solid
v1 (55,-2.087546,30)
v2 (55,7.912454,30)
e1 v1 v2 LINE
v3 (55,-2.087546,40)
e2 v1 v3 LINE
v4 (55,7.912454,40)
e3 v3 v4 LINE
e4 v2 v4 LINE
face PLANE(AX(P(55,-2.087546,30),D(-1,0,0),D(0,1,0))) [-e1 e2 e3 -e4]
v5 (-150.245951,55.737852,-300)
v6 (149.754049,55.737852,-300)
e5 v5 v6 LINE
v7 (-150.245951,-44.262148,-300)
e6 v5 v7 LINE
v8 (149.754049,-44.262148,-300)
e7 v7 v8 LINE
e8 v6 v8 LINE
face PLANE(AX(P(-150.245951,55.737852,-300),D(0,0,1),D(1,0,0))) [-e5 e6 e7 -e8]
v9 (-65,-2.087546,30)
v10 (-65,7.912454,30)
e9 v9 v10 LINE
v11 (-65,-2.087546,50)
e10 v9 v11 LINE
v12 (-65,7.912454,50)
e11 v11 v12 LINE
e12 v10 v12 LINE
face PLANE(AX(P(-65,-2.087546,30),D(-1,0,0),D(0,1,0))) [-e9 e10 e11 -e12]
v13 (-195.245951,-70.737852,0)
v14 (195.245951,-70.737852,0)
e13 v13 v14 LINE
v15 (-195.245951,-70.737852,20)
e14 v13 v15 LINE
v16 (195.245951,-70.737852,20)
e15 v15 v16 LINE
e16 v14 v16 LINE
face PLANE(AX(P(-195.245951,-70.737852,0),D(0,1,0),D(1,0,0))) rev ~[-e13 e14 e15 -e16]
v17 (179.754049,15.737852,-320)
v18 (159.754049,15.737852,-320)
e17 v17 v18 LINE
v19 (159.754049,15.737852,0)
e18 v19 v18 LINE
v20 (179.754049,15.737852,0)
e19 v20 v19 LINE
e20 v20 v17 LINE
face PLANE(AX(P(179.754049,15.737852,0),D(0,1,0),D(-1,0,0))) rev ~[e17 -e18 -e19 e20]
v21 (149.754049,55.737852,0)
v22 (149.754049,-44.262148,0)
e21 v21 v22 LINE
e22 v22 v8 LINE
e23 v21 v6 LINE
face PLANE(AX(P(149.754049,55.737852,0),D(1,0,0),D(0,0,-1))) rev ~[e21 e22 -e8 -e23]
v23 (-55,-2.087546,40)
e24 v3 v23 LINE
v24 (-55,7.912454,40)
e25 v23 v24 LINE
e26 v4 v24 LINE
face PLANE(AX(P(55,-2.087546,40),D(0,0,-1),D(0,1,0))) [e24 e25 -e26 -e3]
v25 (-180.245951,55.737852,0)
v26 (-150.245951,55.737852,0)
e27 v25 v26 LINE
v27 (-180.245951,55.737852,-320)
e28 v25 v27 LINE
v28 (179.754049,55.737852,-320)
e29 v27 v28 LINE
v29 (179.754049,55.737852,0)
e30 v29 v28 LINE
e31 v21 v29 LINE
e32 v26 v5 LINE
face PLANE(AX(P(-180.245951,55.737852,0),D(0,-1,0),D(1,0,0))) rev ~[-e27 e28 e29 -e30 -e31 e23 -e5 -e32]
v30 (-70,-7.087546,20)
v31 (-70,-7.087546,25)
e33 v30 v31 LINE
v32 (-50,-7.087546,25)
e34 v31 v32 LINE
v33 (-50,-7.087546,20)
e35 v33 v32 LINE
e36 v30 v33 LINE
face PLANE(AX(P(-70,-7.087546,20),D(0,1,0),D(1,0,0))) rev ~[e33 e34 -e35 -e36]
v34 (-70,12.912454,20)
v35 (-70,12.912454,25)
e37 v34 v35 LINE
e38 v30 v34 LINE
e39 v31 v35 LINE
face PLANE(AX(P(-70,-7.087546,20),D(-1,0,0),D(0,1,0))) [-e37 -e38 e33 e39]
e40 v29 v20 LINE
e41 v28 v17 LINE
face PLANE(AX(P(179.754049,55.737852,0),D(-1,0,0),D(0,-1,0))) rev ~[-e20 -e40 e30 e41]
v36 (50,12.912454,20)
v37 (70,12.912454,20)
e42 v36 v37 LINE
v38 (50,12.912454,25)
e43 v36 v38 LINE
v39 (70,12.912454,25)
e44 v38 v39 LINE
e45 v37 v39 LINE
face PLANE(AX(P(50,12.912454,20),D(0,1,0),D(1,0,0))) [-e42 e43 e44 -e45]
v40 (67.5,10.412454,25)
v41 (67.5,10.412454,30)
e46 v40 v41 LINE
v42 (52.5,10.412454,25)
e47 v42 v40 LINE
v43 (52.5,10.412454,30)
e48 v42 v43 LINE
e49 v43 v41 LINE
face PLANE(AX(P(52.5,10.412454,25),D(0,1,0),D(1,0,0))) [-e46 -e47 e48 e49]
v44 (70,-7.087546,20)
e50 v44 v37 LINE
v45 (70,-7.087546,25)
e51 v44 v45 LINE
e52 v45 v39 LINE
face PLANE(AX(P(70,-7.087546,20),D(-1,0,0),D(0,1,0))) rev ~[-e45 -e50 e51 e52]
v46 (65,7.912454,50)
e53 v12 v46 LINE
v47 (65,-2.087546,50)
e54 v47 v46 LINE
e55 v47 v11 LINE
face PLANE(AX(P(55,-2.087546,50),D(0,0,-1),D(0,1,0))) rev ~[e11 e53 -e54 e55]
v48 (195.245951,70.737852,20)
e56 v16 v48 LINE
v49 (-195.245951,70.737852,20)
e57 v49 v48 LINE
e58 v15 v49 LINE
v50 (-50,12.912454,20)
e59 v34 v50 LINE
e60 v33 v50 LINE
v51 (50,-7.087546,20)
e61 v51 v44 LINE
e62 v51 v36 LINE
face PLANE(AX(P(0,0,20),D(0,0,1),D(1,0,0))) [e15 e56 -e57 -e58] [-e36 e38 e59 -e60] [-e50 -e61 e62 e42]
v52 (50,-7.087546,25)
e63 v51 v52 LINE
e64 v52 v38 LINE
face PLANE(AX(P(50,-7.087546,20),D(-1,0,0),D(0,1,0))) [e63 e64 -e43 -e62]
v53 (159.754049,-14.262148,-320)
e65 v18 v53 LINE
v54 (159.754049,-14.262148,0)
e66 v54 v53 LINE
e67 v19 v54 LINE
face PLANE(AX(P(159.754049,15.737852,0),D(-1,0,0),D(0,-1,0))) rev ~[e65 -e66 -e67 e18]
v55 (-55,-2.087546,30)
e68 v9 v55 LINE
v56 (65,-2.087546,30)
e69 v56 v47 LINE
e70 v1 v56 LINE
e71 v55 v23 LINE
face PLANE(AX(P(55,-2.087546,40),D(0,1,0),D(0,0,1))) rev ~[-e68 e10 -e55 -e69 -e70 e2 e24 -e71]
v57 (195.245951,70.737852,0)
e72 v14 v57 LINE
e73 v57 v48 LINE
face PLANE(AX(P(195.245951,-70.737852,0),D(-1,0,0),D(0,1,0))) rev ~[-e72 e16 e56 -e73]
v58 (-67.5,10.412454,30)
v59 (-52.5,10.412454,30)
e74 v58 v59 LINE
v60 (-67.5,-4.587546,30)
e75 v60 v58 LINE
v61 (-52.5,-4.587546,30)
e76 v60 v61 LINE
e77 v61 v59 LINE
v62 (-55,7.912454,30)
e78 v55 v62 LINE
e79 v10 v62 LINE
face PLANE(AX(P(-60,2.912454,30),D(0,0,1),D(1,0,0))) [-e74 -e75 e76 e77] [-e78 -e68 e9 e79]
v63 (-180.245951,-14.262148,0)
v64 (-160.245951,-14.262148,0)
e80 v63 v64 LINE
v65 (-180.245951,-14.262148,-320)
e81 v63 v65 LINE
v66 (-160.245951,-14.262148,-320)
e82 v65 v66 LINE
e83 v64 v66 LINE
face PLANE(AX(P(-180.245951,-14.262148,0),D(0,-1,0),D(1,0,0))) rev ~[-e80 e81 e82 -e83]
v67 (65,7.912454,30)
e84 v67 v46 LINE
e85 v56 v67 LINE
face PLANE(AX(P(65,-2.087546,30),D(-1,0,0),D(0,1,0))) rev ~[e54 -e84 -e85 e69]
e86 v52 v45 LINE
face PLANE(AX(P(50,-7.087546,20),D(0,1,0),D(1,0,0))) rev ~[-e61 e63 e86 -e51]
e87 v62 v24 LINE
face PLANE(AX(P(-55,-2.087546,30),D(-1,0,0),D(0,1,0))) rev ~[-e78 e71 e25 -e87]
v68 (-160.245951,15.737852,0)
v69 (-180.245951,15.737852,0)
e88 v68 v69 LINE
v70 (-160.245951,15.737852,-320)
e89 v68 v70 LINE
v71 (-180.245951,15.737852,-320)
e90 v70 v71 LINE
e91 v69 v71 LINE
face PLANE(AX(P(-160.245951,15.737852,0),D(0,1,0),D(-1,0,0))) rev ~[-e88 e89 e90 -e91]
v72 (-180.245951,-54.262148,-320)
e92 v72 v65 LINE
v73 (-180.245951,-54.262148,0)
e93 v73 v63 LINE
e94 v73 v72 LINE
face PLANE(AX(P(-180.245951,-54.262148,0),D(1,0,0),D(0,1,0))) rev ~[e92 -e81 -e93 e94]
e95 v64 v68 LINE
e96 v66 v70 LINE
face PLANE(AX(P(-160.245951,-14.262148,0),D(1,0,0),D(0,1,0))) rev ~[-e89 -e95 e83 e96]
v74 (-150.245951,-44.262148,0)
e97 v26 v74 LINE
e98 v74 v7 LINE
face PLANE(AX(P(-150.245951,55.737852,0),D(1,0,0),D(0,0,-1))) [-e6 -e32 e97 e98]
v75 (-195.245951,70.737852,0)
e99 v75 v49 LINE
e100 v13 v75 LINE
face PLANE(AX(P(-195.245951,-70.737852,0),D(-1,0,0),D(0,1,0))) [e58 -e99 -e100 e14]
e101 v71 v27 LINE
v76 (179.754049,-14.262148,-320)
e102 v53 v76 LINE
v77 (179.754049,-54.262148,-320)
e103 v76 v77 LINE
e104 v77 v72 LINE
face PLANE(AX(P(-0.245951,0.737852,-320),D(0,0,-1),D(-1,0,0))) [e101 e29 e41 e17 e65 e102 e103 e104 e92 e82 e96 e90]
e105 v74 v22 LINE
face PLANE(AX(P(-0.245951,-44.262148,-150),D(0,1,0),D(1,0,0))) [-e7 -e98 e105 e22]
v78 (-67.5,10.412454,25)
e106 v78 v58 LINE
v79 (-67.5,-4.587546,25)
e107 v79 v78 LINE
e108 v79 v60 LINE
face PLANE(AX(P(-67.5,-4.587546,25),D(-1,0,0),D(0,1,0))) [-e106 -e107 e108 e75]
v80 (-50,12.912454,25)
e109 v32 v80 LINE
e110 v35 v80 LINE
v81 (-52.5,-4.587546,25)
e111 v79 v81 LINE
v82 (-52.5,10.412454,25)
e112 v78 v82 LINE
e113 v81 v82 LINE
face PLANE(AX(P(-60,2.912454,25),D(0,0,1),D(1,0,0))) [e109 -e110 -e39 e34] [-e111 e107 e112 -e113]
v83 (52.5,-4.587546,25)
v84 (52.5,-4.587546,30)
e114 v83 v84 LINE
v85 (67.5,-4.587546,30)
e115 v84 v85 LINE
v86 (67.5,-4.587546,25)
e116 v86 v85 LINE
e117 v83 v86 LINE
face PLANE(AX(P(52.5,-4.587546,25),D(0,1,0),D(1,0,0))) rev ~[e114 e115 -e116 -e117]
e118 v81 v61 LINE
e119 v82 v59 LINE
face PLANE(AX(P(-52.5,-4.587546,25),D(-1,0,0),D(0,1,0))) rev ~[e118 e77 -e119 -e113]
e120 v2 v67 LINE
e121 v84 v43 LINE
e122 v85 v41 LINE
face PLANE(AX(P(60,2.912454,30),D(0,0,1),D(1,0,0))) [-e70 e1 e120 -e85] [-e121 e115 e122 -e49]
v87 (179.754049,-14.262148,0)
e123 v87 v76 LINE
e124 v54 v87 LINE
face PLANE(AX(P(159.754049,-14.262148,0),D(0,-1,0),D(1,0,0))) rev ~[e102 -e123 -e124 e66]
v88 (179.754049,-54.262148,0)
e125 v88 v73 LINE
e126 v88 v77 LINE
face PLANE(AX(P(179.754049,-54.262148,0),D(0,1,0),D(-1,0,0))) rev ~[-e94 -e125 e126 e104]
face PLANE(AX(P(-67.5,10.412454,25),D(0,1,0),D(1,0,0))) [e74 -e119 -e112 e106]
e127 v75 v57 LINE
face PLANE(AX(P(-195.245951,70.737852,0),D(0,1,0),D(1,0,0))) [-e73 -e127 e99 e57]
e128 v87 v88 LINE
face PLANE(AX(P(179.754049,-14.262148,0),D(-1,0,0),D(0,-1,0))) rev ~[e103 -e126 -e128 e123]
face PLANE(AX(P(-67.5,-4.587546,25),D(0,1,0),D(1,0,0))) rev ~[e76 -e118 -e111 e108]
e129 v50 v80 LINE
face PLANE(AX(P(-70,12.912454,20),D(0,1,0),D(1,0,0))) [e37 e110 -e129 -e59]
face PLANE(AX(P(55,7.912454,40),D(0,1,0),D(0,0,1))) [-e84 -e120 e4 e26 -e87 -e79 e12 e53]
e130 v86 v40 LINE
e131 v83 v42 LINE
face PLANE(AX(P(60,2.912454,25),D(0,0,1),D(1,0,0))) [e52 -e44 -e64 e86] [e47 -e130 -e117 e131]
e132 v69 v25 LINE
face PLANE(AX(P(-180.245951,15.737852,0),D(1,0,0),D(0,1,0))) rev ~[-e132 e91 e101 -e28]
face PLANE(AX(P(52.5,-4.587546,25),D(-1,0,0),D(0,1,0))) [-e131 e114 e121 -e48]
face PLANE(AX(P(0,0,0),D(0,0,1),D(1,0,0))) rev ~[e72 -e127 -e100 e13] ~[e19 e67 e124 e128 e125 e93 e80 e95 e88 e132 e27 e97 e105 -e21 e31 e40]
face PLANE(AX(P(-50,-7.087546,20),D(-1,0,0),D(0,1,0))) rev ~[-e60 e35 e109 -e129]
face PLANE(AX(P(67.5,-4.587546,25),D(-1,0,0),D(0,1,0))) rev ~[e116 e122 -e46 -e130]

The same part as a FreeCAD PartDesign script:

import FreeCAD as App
import Part
import Sketcher

V = App.Vector
Q = App.Units.Quantity

doc = App.newDocument("Part")
params = doc.addObject("Spreadsheet::Sheet", "Params")
for row, (alias, value) in enumerate([
    ("sketch1_width", "360 mm"),
    ("sketch1_width2", "20 mm"),
    ("sketch1_height", "40 mm"),
    ("sketch1_height2", "30 mm"),
    ("pad1_length", "320 mm"),
    ("pad2_length", "20 mm"),
    ("sketch3_width", "300 mm"),
    ("pocket1_length", "100 mm"),
    ("sketch4_width", "20 mm"),
    ("pad3_length", "5 mm"),
    ("sketch5_width", "15 mm"),
    ("pad4_length", "5 mm"),
    ("sketch6_width", "10 mm"),
    ("pad5_length", "20 mm"),
    ("sketch7_width", "10 mm"),
], start=1):
    params.set(f"A{row}", alias)
    params.set(f"B{row}", "=" + value)
    params.setAlias(f"B{row}", alias)

body = doc.addObject("PartDesign::Body", "Body")

sketch1 = body.newObject("Sketcher::SketchObject", "Sketch")
sketch1.AttachmentSupport = (doc.getObject("XY_Plane"), [""])
sketch1.MapMode = "FlatFace"
sketch1.addGeometry([
    Part.LineSegment(V(179.754049, 55.737852, 0), V(-180.245951, 55.737852, 0)),
    Part.LineSegment(V(-180.245951, 55.737852, 0), V(-180.245951, 15.737852, 0)),
    Part.LineSegment(V(-180.245951, 15.737852, 0), V(-160.245951, 15.737852, 0)),
    Part.LineSegment(V(-160.245951, 15.737852, 0), V(-160.245951, -14.262148, 0)),
    Part.LineSegment(V(-160.245951, -14.262148, 0), V(-180.245951, -14.262148, 0)),
    Part.LineSegment(V(-180.245951, -14.262148, 0), V(-180.245951, -54.262148, 0)),
    Part.LineSegment(V(-180.245951, -54.262148, 0), V(179.754049, -54.262148, 0)),
    Part.LineSegment(V(179.754049, -54.262148, 0), V(179.754049, -14.262148, 0)),
    Part.LineSegment(V(179.754049, -14.262148, 0), V(159.754049, -14.262148, 0)),
    Part.LineSegment(V(159.754049, -14.262148, 0), V(159.754049, 15.737852, 0)),
    Part.LineSegment(V(159.754049, 15.737852, 0), V(179.754049, 15.737852, 0)),
    Part.LineSegment(V(179.754049, 15.737852, 0), V(179.754049, 55.737852, 0)),
], False)
sketch1.addConstraint([
    Sketcher.Constraint("Coincident", 0, 2, 1, 1),
    Sketcher.Constraint("Coincident", 1, 2, 2, 1),
    Sketcher.Constraint("Coincident", 2, 2, 3, 1),
    Sketcher.Constraint("Coincident", 3, 2, 4, 1),
    Sketcher.Constraint("Coincident", 4, 2, 5, 1),
    Sketcher.Constraint("Coincident", 5, 2, 6, 1),
    Sketcher.Constraint("Coincident", 6, 2, 7, 1),
    Sketcher.Constraint("Coincident", 7, 2, 8, 1),
    Sketcher.Constraint("Coincident", 8, 2, 9, 1),
    Sketcher.Constraint("Coincident", 9, 2, 10, 1),
    Sketcher.Constraint("Coincident", 10, 2, 11, 1),
    Sketcher.Constraint("Coincident", 11, 2, 0, 1),
    Sketcher.Constraint("Horizontal", 0),
    Sketcher.Constraint("Vertical", 1),
    Sketcher.Constraint("Horizontal", 2),
    Sketcher.Constraint("Vertical", 3),
    Sketcher.Constraint("Horizontal", 4),
    Sketcher.Constraint("Vertical", 5),
    Sketcher.Constraint("Horizontal", 6),
    Sketcher.Constraint("Vertical", 7),
    Sketcher.Constraint("Horizontal", 8),
    Sketcher.Constraint("Vertical", 9),
    Sketcher.Constraint("Horizontal", 10),
    Sketcher.Constraint("Vertical", 11),
    Sketcher.Constraint("Horizontal", 4, 2, 7, 2),
    Sketcher.Constraint("Horizontal", 2, 2, 9, 2),
    Sketcher.Constraint("Vertical", 1, 2, 4, 2),
    Sketcher.Constraint("Vertical", 7, 2, 10, 2),
    Sketcher.Constraint("Equal", 4, 8),
    Sketcher.Constraint("Equal", 1, 5),
    Sketcher.Constraint("DistanceX", 0, 2, 0, 1, Q("360 mm")),
    Sketcher.Constraint("DistanceX", 2, 1, 2, 2, Q("20 mm")),
    Sketcher.Constraint("DistanceY", 1, 2, 1, 1, Q("40 mm")),
    Sketcher.Constraint("DistanceY", 3, 2, 3, 1, Q("30 mm")),
    Sketcher.Constraint("DistanceX", 0, 2, -1, 1, Q("180.245951 mm")),
    Sketcher.Constraint("DistanceY", -1, 1, 0, 2, Q("55.737852 mm")),
])
sketch1.setExpression("Constraints[30]", "Params.sketch1_width")
sketch1.setExpression("Constraints[31]", "Params.sketch1_width2")
sketch1.setExpression("Constraints[32]", "Params.sketch1_height")
sketch1.setExpression("Constraints[33]", "Params.sketch1_height2")
pad1 = body.newObject("PartDesign::Pad", "Pad")
pad1.Profile = sketch1
pad1.setExpression("Length", "Params.pad1_length")
pad1.Reversed = True

sketch2 = body.newObject("Sketcher::SketchObject", "Sketch001")
sketch2.AttachmentSupport = (doc.getObject("XY_Plane"), [""])
sketch2.MapMode = "FlatFace"
sketch2.addGeometry([
    Part.LineSegment(V(-195.245951, 70.737852, 0), V(-195.245951, -70.737852, 0)),
    Part.LineSegment(V(-195.245951, -70.737852, 0), V(195.245951, -70.737852, 0)),
    Part.LineSegment(V(195.245951, -70.737852, 0), V(195.245951, 70.737852, 0)),
    Part.LineSegment(V(195.245951, 70.737852, 0), V(-195.245951, 70.737852, 0)),
], False)
sketch2.addConstraint([
    Sketcher.Constraint("Coincident", 0, 2, 1, 1),
    Sketcher.Constraint("Coincident", 1, 2, 2, 1),
    Sketcher.Constraint("Coincident", 2, 2, 3, 1),
    Sketcher.Constraint("Coincident", 3, 2, 0, 1),
    Sketcher.Constraint("Vertical", 0),
    Sketcher.Constraint("Horizontal", 1),
    Sketcher.Constraint("Vertical", 2),
    Sketcher.Constraint("Horizontal", 3),
    Sketcher.Constraint("Symmetric", 0, 2, 2, 2, -1, 1),
    Sketcher.Constraint("DistanceX", 1, 1, 1, 2, Q("390.491901 mm")),
    Sketcher.Constraint("DistanceY", 0, 2, 0, 1, Q("141.475704 mm")),
])
pad2 = body.newObject("PartDesign::Pad", "Pad001")
pad2.Profile = sketch2
pad2.setExpression("Length", "Params.pad2_length")

sketch3 = body.newObject("Sketcher::SketchObject", "Sketch002")
sketch3.AttachmentSupport = (doc.getObject("XZ_Plane"), [""])
sketch3.MapMode = "FlatFace"
sketch3.AttachmentOffset = App.Placement(V(0, 0, -55.737852), App.Rotation())
sketch3.addGeometry([
    Part.LineSegment(V(-150.245951, -300, 0), V(-150.245951, 0, 0)),
    Part.LineSegment(V(-150.245951, 0, 0), V(149.754049, 0, 0)),
    Part.LineSegment(V(149.754049, 0, 0), V(149.754049, -300, 0)),
    Part.LineSegment(V(149.754049, -300, 0), V(-150.245951, -300, 0)),
], False)
sketch3.addConstraint([
    Sketcher.Constraint("Coincident", 0, 2, 1, 1),
    Sketcher.Constraint("Coincident", 1, 2, 2, 1),
    Sketcher.Constraint("Coincident", 2, 2, 3, 1),
    Sketcher.Constraint("Coincident", 3, 2, 0, 1),
    Sketcher.Constraint("Vertical", 0),
    Sketcher.Constraint("Horizontal", 1),
    Sketcher.Constraint("Vertical", 2),
    Sketcher.Constraint("Horizontal", 3),
    Sketcher.Constraint("PointOnObject", 0, 2, -1),
    Sketcher.Constraint("Equal", 3, 0),
    Sketcher.Constraint("DistanceX", 1, 1, 1, 2, Q("300 mm")),
    Sketcher.Constraint("DistanceX", 0, 2, -1, 1, Q("150.245951 mm")),
])
sketch3.setExpression("Constraints[10]", "Params.sketch3_width")
pocket1 = body.newObject("PartDesign::Pocket", "Pocket")
pocket1.Profile = sketch3
pocket1.setExpression("Length", "Params.pocket1_length")
pocket1.Reversed = True

sketch4 = body.newObject("Sketcher::SketchObject", "Sketch003")
sketch4.AttachmentSupport = (doc.getObject("XY_Plane"), [""])
sketch4.MapMode = "FlatFace"
sketch4.AttachmentOffset = App.Placement(V(0, 0, 20), App.Rotation())
sketch4.addGeometry([
    Part.LineSegment(V(-70, 12.912454, 0), V(-70, -7.087546, 0)),
    Part.LineSegment(V(-70, -7.087546, 0), V(-50, -7.087546, 0)),
    Part.LineSegment(V(-50, -7.087546, 0), V(-50, 12.912454, 0)),
    Part.LineSegment(V(-50, 12.912454, 0), V(-70, 12.912454, 0)),
    Part.LineSegment(V(50, 12.912454, 0), V(50, -7.087546, 0)),
    Part.LineSegment(V(50, -7.087546, 0), V(70, -7.087546, 0)),
    Part.LineSegment(V(70, -7.087546, 0), V(70, 12.912454, 0)),
    Part.LineSegment(V(70, 12.912454, 0), V(50, 12.912454, 0)),
], False)
sketch4.addConstraint([
    Sketcher.Constraint("Coincident", 0, 2, 1, 1),
    Sketcher.Constraint("Coincident", 1, 2, 2, 1),
    Sketcher.Constraint("Coincident", 2, 2, 3, 1),
    Sketcher.Constraint("Coincident", 3, 2, 0, 1),
    Sketcher.Constraint("Coincident", 4, 2, 5, 1),
    Sketcher.Constraint("Coincident", 5, 2, 6, 1),
    Sketcher.Constraint("Coincident", 6, 2, 7, 1),
    Sketcher.Constraint("Coincident", 7, 2, 4, 1),
    Sketcher.Constraint("Vertical", 0),
    Sketcher.Constraint("Horizontal", 1),
    Sketcher.Constraint("Vertical", 2),
    Sketcher.Constraint("Horizontal", 3),
    Sketcher.Constraint("Vertical", 4),
    Sketcher.Constraint("Horizontal", 5),
    Sketcher.Constraint("Vertical", 6),
    Sketcher.Constraint("Horizontal", 7),
    Sketcher.Constraint("Symmetric", 1, 2, 4, 2, -2),
    Sketcher.Constraint("Symmetric", 3, 2, 6, 2, -2),
    Sketcher.Constraint("Equal", 7, 0),
    Sketcher.Constraint("DistanceX", 1, 1, 1, 2, Q("20 mm")),
    Sketcher.Constraint("DistanceX", 0, 2, -1, 1, Q("70 mm")),
    Sketcher.Constraint("DistanceY", 0, 2, -1, 1, Q("7.087546 mm")),
])
sketch4.setExpression("Constraints[19]", "Params.sketch4_width")
pad3 = body.newObject("PartDesign::Pad", "Pad002")
pad3.Profile = sketch4
pad3.setExpression("Length", "Params.pad3_length")

sketch5 = body.newObject("Sketcher::SketchObject", "Sketch004")
sketch5.AttachmentSupport = (doc.getObject("XY_Plane"), [""])
sketch5.MapMode = "FlatFace"
sketch5.AttachmentOffset = App.Placement(V(0, 0, 25), App.Rotation())
sketch5.addGeometry([
    Part.LineSegment(V(-67.5, 10.412454, 0), V(-67.5, -4.587546, 0)),
    Part.LineSegment(V(-67.5, -4.587546, 0), V(-52.5, -4.587546, 0)),
    Part.LineSegment(V(-52.5, -4.587546, 0), V(-52.5, 10.412454, 0)),
    Part.LineSegment(V(-52.5, 10.412454, 0), V(-67.5, 10.412454, 0)),
    Part.LineSegment(V(52.5, 10.412454, 0), V(52.5, -4.587546, 0)),
    Part.LineSegment(V(52.5, -4.587546, 0), V(67.5, -4.587546, 0)),
    Part.LineSegment(V(67.5, -4.587546, 0), V(67.5, 10.412454, 0)),
    Part.LineSegment(V(67.5, 10.412454, 0), V(52.5, 10.412454, 0)),
], False)
sketch5.addConstraint([
    Sketcher.Constraint("Coincident", 0, 2, 1, 1),
    Sketcher.Constraint("Coincident", 1, 2, 2, 1),
    Sketcher.Constraint("Coincident", 2, 2, 3, 1),
    Sketcher.Constraint("Coincident", 3, 2, 0, 1),
    Sketcher.Constraint("Coincident", 4, 2, 5, 1),
    Sketcher.Constraint("Coincident", 5, 2, 6, 1),
    Sketcher.Constraint("Coincident", 6, 2, 7, 1),
    Sketcher.Constraint("Coincident", 7, 2, 4, 1),
    Sketcher.Constraint("Vertical", 0),
    Sketcher.Constraint("Horizontal", 1),
    Sketcher.Constraint("Vertical", 2),
    Sketcher.Constraint("Horizontal", 3),
    Sketcher.Constraint("Vertical", 4),
    Sketcher.Constraint("Horizontal", 5),
    Sketcher.Constraint("Vertical", 6),
    Sketcher.Constraint("Horizontal", 7),
    Sketcher.Constraint("Symmetric", 1, 2, 4, 2, -2),
    Sketcher.Constraint("Symmetric", 3, 2, 6, 2, -2),
    Sketcher.Constraint("Equal", 7, 0),
    Sketcher.Constraint("DistanceX", 1, 1, 1, 2, Q("15 mm")),
    Sketcher.Constraint("DistanceX", 1, 2, 4, 2, Q("105 mm")),
    Sketcher.Constraint("DistanceY", 0, 2, -1, 1, Q("4.587546 mm")),
])
sketch5.setExpression("Constraints[19]", "Params.sketch5_width")
pad4 = body.newObject("PartDesign::Pad", "Pad003")
pad4.Profile = sketch5
pad4.setExpression("Length", "Params.pad4_length")

sketch6 = body.newObject("Sketcher::SketchObject", "Sketch005")
sketch6.AttachmentSupport = (doc.getObject("XY_Plane"), [""])
sketch6.MapMode = "FlatFace"
sketch6.AttachmentOffset = App.Placement(V(0, 0, 30), App.Rotation())
sketch6.addGeometry([
    Part.LineSegment(V(-65, 7.912454, 0), V(-65, -2.087546, 0)),
    Part.LineSegment(V(-65, -2.087546, 0), V(-55, -2.087546, 0)),
    Part.LineSegment(V(-55, -2.087546, 0), V(-55, 7.912454, 0)),
    Part.LineSegment(V(-55, 7.912454, 0), V(-65, 7.912454, 0)),
    Part.LineSegment(V(55, 7.912454, 0), V(55, -2.087546, 0)),
    Part.LineSegment(V(55, -2.087546, 0), V(65, -2.087546, 0)),
    Part.LineSegment(V(65, -2.087546, 0), V(65, 7.912454, 0)),
    Part.LineSegment(V(65, 7.912454, 0), V(55, 7.912454, 0)),
], False)
sketch6.addConstraint([
    Sketcher.Constraint("Coincident", 0, 2, 1, 1),
    Sketcher.Constraint("Coincident", 1, 2, 2, 1),
    Sketcher.Constraint("Coincident", 2, 2, 3, 1),
    Sketcher.Constraint("Coincident", 3, 2, 0, 1),
    Sketcher.Constraint("Coincident", 4, 2, 5, 1),
    Sketcher.Constraint("Coincident", 5, 2, 6, 1),
    Sketcher.Constraint("Coincident", 6, 2, 7, 1),
    Sketcher.Constraint("Coincident", 7, 2, 4, 1),
    Sketcher.Constraint("Vertical", 0),
    Sketcher.Constraint("Horizontal", 1),
    Sketcher.Constraint("Vertical", 2),
    Sketcher.Constraint("Horizontal", 3),
    Sketcher.Constraint("Vertical", 4),
    Sketcher.Constraint("Horizontal", 5),
    Sketcher.Constraint("Vertical", 6),
    Sketcher.Constraint("Horizontal", 7),
    Sketcher.Constraint("Symmetric", 1, 2, 4, 2, -2),
    Sketcher.Constraint("Symmetric", 3, 2, 6, 2, -2),
    Sketcher.Constraint("Equal", 7, 0),
    Sketcher.Constraint("DistanceX", 1, 1, 1, 2, Q("10 mm")),
    Sketcher.Constraint("DistanceX", 0, 2, -1, 1, Q("65 mm")),
    Sketcher.Constraint("DistanceY", 0, 2, -1, 1, Q("2.087546 mm")),
])
sketch6.setExpression("Constraints[19]", "Params.sketch6_width")
pad5 = body.newObject("PartDesign::Pad", "Pad004")
pad5.Profile = sketch6
pad5.setExpression("Length", "Params.pad5_length")

sketch7 = body.newObject("Sketcher::SketchObject", "Sketch006")
sketch7.AttachmentSupport = (doc.getObject("YZ_Plane"), [""])
sketch7.MapMode = "FlatFace"
sketch7.AttachmentOffset = App.Placement(V(0, 0, 55), App.Rotation())
sketch7.addGeometry([
    Part.LineSegment(V(7.912454, 40, 0), V(-2.087546, 40, 0)),
    Part.LineSegment(V(-2.087546, 40, 0), V(-2.087546, 50, 0)),
    Part.LineSegment(V(-2.087546, 50, 0), V(7.912454, 50, 0)),
    Part.LineSegment(V(7.912454, 50, 0), V(7.912454, 40, 0)),
], False)
sketch7.addConstraint([
    Sketcher.Constraint("Coincident", 0, 2, 1, 1),
    Sketcher.Constraint("Coincident", 1, 2, 2, 1),
    Sketcher.Constraint("Coincident", 2, 2, 3, 1),
    Sketcher.Constraint("Coincident", 3, 2, 0, 1),
    Sketcher.Constraint("Horizontal", 0),
    Sketcher.Constraint("Vertical", 1),
    Sketcher.Constraint("Horizontal", 2),
    Sketcher.Constraint("Vertical", 3),
    Sketcher.Constraint("Equal", 2, 1),
    Sketcher.Constraint("DistanceX", 0, 2, 0, 1, Q("10 mm")),
    Sketcher.Constraint("DistanceY", -1, 1, 0, 2, Q("40 mm")),
    Sketcher.Constraint("DistanceX", 0, 2, -1, 1, Q("2.087546 mm")),
])
sketch7.setExpression("Constraints[9]", "Params.sketch7_width")
pad6 = body.newObject("PartDesign::Pad", "Pad005")
pad6.Profile = sketch7
pad6.Type = "UpToFirst"
pad6.Reversed = True

doc.recompute()
